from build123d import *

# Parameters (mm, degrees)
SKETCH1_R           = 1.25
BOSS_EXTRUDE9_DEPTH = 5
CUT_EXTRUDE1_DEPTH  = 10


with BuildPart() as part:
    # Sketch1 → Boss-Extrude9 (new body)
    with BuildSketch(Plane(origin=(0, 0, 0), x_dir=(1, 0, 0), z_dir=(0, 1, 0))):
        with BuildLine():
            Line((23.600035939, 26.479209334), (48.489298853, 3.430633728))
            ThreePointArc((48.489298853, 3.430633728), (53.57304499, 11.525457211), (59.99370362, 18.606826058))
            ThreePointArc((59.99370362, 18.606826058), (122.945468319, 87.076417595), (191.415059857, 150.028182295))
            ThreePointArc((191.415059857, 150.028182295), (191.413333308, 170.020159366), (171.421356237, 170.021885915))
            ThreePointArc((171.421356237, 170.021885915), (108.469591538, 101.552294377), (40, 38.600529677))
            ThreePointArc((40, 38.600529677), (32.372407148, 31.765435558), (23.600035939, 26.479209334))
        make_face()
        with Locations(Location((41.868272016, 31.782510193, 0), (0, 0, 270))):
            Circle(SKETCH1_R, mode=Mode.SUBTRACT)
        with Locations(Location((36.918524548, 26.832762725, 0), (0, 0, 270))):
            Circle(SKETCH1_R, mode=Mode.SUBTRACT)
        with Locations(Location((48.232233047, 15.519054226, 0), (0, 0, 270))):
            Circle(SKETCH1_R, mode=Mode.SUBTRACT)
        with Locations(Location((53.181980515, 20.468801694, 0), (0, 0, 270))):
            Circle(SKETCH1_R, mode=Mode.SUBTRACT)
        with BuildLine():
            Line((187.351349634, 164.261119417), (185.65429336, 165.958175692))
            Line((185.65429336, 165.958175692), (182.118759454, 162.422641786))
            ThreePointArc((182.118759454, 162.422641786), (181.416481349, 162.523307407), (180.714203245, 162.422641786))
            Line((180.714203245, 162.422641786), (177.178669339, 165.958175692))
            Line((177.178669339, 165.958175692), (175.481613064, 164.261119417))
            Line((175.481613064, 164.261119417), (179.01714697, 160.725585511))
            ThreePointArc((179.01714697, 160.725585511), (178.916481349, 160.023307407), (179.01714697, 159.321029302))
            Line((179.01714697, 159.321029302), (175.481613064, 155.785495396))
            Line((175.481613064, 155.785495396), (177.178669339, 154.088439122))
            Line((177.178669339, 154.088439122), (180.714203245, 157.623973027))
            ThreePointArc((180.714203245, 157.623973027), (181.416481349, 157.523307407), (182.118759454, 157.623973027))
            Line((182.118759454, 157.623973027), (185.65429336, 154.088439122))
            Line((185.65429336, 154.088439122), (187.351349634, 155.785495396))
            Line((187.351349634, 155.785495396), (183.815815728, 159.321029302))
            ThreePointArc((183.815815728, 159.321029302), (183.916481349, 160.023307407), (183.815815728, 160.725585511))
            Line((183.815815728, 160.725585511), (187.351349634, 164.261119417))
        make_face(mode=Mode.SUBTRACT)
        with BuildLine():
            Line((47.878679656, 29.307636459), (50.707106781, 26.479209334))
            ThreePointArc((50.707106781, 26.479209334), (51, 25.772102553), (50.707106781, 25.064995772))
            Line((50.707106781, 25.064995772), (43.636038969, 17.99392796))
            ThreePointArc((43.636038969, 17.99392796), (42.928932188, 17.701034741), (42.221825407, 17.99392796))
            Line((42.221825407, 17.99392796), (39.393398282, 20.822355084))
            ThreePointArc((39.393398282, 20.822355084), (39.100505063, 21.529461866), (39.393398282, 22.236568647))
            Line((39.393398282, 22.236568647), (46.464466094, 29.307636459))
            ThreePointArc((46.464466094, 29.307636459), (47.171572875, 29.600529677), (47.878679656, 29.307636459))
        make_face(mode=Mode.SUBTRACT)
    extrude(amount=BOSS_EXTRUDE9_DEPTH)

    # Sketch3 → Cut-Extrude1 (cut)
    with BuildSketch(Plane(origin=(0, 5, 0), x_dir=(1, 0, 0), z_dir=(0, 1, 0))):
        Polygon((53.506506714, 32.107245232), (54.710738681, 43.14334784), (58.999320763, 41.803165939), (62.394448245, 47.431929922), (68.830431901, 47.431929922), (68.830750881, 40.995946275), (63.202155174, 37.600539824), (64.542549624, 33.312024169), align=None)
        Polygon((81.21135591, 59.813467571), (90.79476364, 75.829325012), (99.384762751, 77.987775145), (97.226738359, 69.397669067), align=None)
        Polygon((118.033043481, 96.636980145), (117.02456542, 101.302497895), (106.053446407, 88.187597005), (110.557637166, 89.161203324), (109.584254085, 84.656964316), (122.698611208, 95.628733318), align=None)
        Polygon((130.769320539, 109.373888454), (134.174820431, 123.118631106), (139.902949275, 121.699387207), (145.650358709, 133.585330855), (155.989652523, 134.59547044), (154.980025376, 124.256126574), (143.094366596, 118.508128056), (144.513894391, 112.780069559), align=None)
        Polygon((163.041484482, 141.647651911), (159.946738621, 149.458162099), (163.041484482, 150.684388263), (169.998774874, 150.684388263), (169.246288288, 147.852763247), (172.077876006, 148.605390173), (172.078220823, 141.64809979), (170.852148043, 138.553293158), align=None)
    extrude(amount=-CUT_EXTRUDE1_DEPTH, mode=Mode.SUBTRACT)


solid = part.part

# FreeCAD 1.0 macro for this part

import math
import FreeCAD as App
import Part
import Sketcher
from FreeCAD import Vector
Q = App.Units.Quantity


def add_polygon(sketch, points):
    """Adds a closed chain of lines whose ends are joined by coincident constraints."""
    first, n = sketch.GeometryCount, len(points)
    for a, b in zip(points, points[1:] + points[:1]):
        sketch.addGeometry(Part.LineSegment(App.Vector(*a, 0), App.Vector(*b, 0)), False)
    for i in range(n):
        sketch.addConstraint(Sketcher.Constraint("Coincident", first + i, 2, first + (i + 1) % n, 1))

doc = App.newDocument("Part")
params = doc.addObject("Spreadsheet::Sheet", "Params")
for row, (alias, value) in enumerate([
    ("sketch1_radius", "1 mm"),
    ("sketch1_diameter", "2.5 mm"),
    ("sketch1_radius2", "2.5 mm"),
    ("sketch1_length", "4 mm"),
    ("sketch1_length2", "10 mm"),
    ("pad1_length", "5 mm"),
    ("pocket1_length", "10 mm"),
], start=1):
    params.set(f"A{row}", alias)
    params.set(f"B{row}", "=" + value)
    params.setAlias(f"B{row}", alias)

body = doc.addObject("PartDesign::Body", "Body")

sketch1 = body.newObject("Sketcher::SketchObject", "Sketch")
sketch1.AttachmentSupport = (doc.getObject("XZ_Plane"), [""])
sketch1.MapMode = "FlatFace"
sketch1.addGeometry([
    Part.LineSegment(Vector(23.6, -26.5, 0), Vector(48.5, -3.4, 0)),
    Part.ArcOfCircle(Part.Circle(Vector(97, 21.4, 0), Vector(0, 0, 1), 54.5), math.radians(-153), math.radians(-133)),
    Part.ArcOfCircle(Part.Circle(Vector(906.9, 696.8, 0), Vector(0, 0, 1), 1108.6), math.radians(-139.81), math.radians(-130.19)),
    Part.ArcOfCircle(Part.Circle(Vector(181.4, -160, 0), Vector(0, 0, 1), 14.1), math.radians(-135), math.radians(45)),
    Part.ArcOfCircle(Part.Circle(Vector(-675.4, -885.5, 0), Vector(0, 0, 1), 1108.6), math.radians(40.19), math.radians(49.81)),
    Part.ArcOfCircle(Part.Circle(Vector(0, -75.6, 0), Vector(0, 0, 1), 54.5), math.radians(43), math.radians(64)),
    Part.ArcOfCircle(Part.Circle(Vector(47.2, -28.6, 0), Vector(0, 0, 1), 1), math.radians(-135), math.radians(-45)),
    Part.LineSegment(Vector(47.9, -29.3, 0), Vector(50.7, -26.5, 0)),
    Part.ArcOfCircle(Part.Circle(Vector(50, -25.8, 0), Vector(0, 0, 1), 1), math.radians(-45), math.radians(45)),
    Part.LineSegment(Vector(50.7, -25.1, 0), Vector(43.6, -18, 0)),
    Part.ArcOfCircle(Part.Circle(Vector(42.9, -18.7, 0), Vector(0, 0, 1), 1), math.radians(45), math.radians(135)),
    Part.LineSegment(Vector(42.2, -18, 0), Vector(39.4, -20.8, 0)),
    Part.ArcOfCircle(Part.Circle(Vector(40.1, -21.5, 0), Vector(0, 0, 1), 1), math.radians(135), math.radians(225)),
    Part.LineSegment(Vector(39.4, -22.2, 0), Vector(46.5, -29.3, 0)),
    Part.Circle(Vector(48.2, -15.5, 0), Vector(0, 0, 1), 1.2),
    Part.Circle(Vector(53.2, -20.5, 0), Vector(0, 0, 1), 1.2),
    Part.Circle(Vector(36.9, -26.8, 0), Vector(0, 0, 1), 1.2),
    Part.Circle(Vector(41.9, -31.8, 0), Vector(0, 0, 1), 1.2),
    Part.LineSegment(Vector(185.7, -166, 0), Vector(187.4, -164.3, 0)),
    Part.LineSegment(Vector(187.4, -164.3, 0), Vector(183.8, -160.7, 0)),
    Part.ArcOfCircle(Part.Circle(Vector(181.4, -160, 0), Vector(0, 0, 1), 2.5), math.radians(-16), math.radians(16)),
    Part.LineSegment(Vector(183.8, -159.3, 0), Vector(187.4, -155.8, 0)),
    Part.LineSegment(Vector(187.4, -155.8, 0), Vector(185.7, -154.1, 0)),
    Part.LineSegment(Vector(185.7, -154.1, 0), Vector(182.1, -157.6, 0)),
    Part.ArcOfCircle(Part.Circle(Vector(181.4, -160, 0), Vector(0, 0, 1), 2.5), math.radians(74), math.radians(106)),
    Part.LineSegment(Vector(180.7, -157.6, 0), Vector(177.2, -154.1, 0)),
    Part.LineSegment(Vector(177.2, -154.1, 0), Vector(175.5, -155.8, 0)),
    Part.LineSegment(Vector(175.5, -155.8, 0), Vector(179, -159.3, 0)),
    Part.ArcOfCircle(Part.Circle(Vector(181.4, -160, 0), Vector(0, 0, 1), 2.5), math.radians(164), math.radians(196)),
    Part.LineSegment(Vector(179, -160.7, 0), Vector(175.5, -164.3, 0)),
    Part.LineSegment(Vector(175.5, -164.3, 0), Vector(177.2, -166, 0)),
    Part.LineSegment(Vector(177.2, -166, 0), Vector(180.7, -162.4, 0)),
    Part.ArcOfCircle(Part.Circle(Vector(181.4, -160, 0), Vector(0, 0, 1), 2.5), math.radians(-106), math.radians(-74)),
    Part.LineSegment(Vector(182.1, -162.4, 0), Vector(185.7, -166, 0)),
], False)
sketch1.addConstraint([
    Sketcher.Constraint("Coincident", 0, 2, 1, 1),
    Sketcher.Constraint("Coincident", 1, 2, 2, 1),
    Sketcher.Constraint("Coincident", 2, 2, 3, 2),
    Sketcher.Constraint("Coincident", 3, 1, 4, 1),
    Sketcher.Constraint("Coincident", 4, 2, 5, 1),
    Sketcher.Constraint("Coincident", 5, 2, 0, 1),
    Sketcher.Constraint("Tangent", 6, 2, 7, 1),
    Sketcher.Constraint("Tangent", 7, 2, 8, 1),
    Sketcher.Constraint("Tangent", 8, 2, 9, 1),
    Sketcher.Constraint("Tangent", 9, 2, 10, 1),
    Sketcher.Constraint("Tangent", 10, 2, 11, 1),
    Sketcher.Constraint("Tangent", 11, 2, 12, 1),
    Sketcher.Constraint("Tangent", 12, 2, 13, 1),
    Sketcher.Constraint("Tangent", 13, 2, 6, 1),
    Sketcher.Constraint("Coincident", 18, 2, 19, 1),
    Sketcher.Constraint("Coincident", 19, 2, 20, 1),
    Sketcher.Constraint("Coincident", 20, 2, 21, 1),
    Sketcher.Constraint("Coincident", 21, 2, 22, 1),
    Sketcher.Constraint("Coincident", 22, 2, 23, 1),
    Sketcher.Constraint("Coincident", 23, 2, 24, 1),
    Sketcher.Constraint("Coincident", 24, 2, 25, 1),
    Sketcher.Constraint("Coincident", 25, 2, 26, 1),
    Sketcher.Constraint("Coincident", 26, 2, 27, 1),
    Sketcher.Constraint("Coincident", 27, 2, 28, 1),
    Sketcher.Constraint("Coincident", 28, 2, 29, 1),
    Sketcher.Constraint("Coincident", 29, 2, 30, 1),
    Sketcher.Constraint("Coincident", 30, 2, 31, 1),
    Sketcher.Constraint("Coincident", 31, 2, 32, 1),
    Sketcher.Constraint("Coincident", 32, 2, 33, 1),
    Sketcher.Constraint("Coincident", 33, 2, 18, 1),
    Sketcher.Constraint("Coincident", 20, 3, 3, 3),
    Sketcher.Constraint("Coincident", 24, 3, 3, 3),
    Sketcher.Constraint("Coincident", 28, 3, 3, 3),
    Sketcher.Constraint("Coincident", 32, 3, 3, 3),
    Sketcher.Constraint("Equal", 2, 4),
    Sketcher.Constraint("Equal", 1, 5),
    Sketcher.Constraint("Equal", 6, 8),
    Sketcher.Constraint("Equal", 8, 10),
    Sketcher.Constraint("Equal", 10, 12),
    Sketcher.Constraint("Equal", 14, 15),
    Sketcher.Constraint("Equal", 15, 16),
    Sketcher.Constraint("Equal", 16, 17),
    Sketcher.Constraint("Equal", 20, 24),
    Sketcher.Constraint("Equal", 24, 28),
    Sketcher.Constraint("Equal", 28, 32),
    Sketcher.Constraint("PointOnObject", 5, 3, -2),
    Sketcher.Constraint("Perpendicular", 7, 9),
    Sketcher.Constraint("Perpendicular", 9, 11),
    Sketcher.Constraint("Perpendicular", 11, 13),
    Sketcher.Constraint("Perpendicular", 13, 18),
    Sketcher.Constraint("Perpendicular", 18, 19),
    Sketcher.Constraint("Perpendicular", 19, 21),
    Sketcher.Constraint("Perpendicular", 21, 22),
    Sketcher.Constraint("Perpendicular", 22, 23),
    Sketcher.Constraint("Perpendicular", 23, 25),
    Sketcher.Constraint("Perpendicular", 25, 26),
    Sketcher.Constraint("Perpendicular", 26, 27),
    Sketcher.Constraint("Perpendicular", 27, 29),
    Sketcher.Constraint("Perpendicular", 29, 30),
    Sketcher.Constraint("Perpendicular", 30, 31),
    Sketcher.Constraint("Perpendicular", 31, 33),
    Sketcher.Constraint("Horizontal", 5, 2, 7, 2),
    Sketcher.Constraint("Horizontal", 9, 2, 10, 2),
    Sketcher.Constraint("Horizontal", 23, 2, 24, 2),
    Sketcher.Constraint("Horizontal", 22, 2, 25, 2),
    Sketcher.Constraint("Horizontal", 21, 2, 26, 2),
    Sketcher.Constraint("Horizontal", 19, 2, 28, 2),
    Sketcher.Constraint("Horizontal", 18, 2, 29, 2),
    Sketcher.Constraint("Horizontal", 31, 2, 32, 2),
    Sketcher.Constraint("Vertical", 19, 2, 20, 2),
    Sketcher.Constraint("Vertical", 18, 2, 21, 2),
    Sketcher.Constraint("Vertical", 25, 2, 30, 2),
    Sketcher.Constraint("Equal", 21, 23),
    Sketcher.Constraint("Radius", 6, Q("1 mm")),
    Sketcher.Constraint("Diameter", 14, Q("2.5 mm")),
    Sketcher.Constraint("Radius", 20, Q("2.5 mm")),
    Sketcher.Constraint("Distance", 7, Q("4 mm")),
    Sketcher.Constraint("Distance", 9, Q("10 mm")),
    Sketcher.Constraint("Distance", 19, Q("5 mm")),
    Sketcher.Constraint("DistanceX", -1, 1, 8, 3, Q("50 mm")),
    Sketcher.Constraint("DistanceX", -1, 1, 4, 2, Q("40 mm")),
    Sketcher.Constraint("Distance", 18, Q("2.4 mm")),
    Sketcher.Constraint("Radius", 2, Q("1108.622609 mm")),
    Sketcher.Constraint("Radius", 1, Q("54.464286 mm")),
    Sketcher.Constraint("Radius", 3, Q("14.137684 mm")),
    Sketcher.Constraint("DistanceY", 15, 3, -1, 1, Q("20.468802 mm")),
    Sketcher.Constraint("DistanceX", -1, 1, 0, 2, Q("48.489299 mm")),
    Sketcher.Constraint("DistanceY", 10, 3, 1, 3, Q("40.077499 mm")),
    Sketcher.Constraint("DistanceX", 10, 3, 14, 3, Q("5.303301 mm")),
    Sketcher.Constraint("DistanceY", 8, 3, 15, 3, Q("5.303301 mm")),
    Sketcher.Constraint("DistanceY", 16, 3, 12, 3, Q("5.303301 mm")),
    Sketcher.Constraint("DistanceX", 17, 3, 6, 3, Q("5.303301 mm")),
    Sketcher.Constraint("DistanceX", 15, 3, 20, 3, Q("128.234501 mm")),
    Sketcher.Constraint("DistanceY", 10, 3, 0, 2, Q("15.270401 mm")),
    Sketcher.Constraint("DistanceY", 17, 3, 5, 2, Q("5.303301 mm")),
    Sketcher.Constraint("DistanceX", 6, 2, 15, 3, Q("5.303301 mm")),
    Sketcher.Constraint("DistanceX", 16, 3, 10, 2, Q("5.303301 mm")),
    Sketcher.Constraint("Distance", 0, Q("33.92215 mm")),
    Sketcher.Constraint("DistanceY", 4, 3, -1, 1, Q("885.466859 mm")),
    Sketcher.Constraint("DistanceX", -1, 1, 2, 2, Q("191.41506 mm")),
    Sketcher.Constraint("DistanceY", 18, 2, -1, 1, Q("164.261119 mm")),
    Sketcher.Constraint("DistanceX", 1, 3, 2, 3, Q("809.88397 mm")),
    Sketcher.Constraint("DistanceY", 10, 3, 14, 3, Q("3.181981 mm")),
])
sketch1.setExpression("Constraints[73]", "Params.sketch1_radius")
sketch1.setExpression("Constraints[74]", "Params.sketch1_diameter")
sketch1.setExpression("Constraints[75]", "Params.sketch1_radius2")
sketch1.setExpression("Constraints[76]", "Params.sketch1_length")
sketch1.setExpression("Constraints[77]", "Params.sketch1_length2")
pad1 = body.newObject("PartDesign::Pad", "Pad")
pad1.Profile = sketch1
pad1.setExpression("Length", "Params.pad1_length")
pad1.Reversed = True

sketch2 = body.newObject("Sketcher::SketchObject", "Sketch001")
sketch2.AttachmentSupport = (doc.getObject("XZ_Plane"), [""])
sketch2.MapMode = "FlatFace"
sketch2.AttachmentOffset = App.Placement(Vector(0, 0, -5), App.Rotation())
add_polygon(sketch2, [(54.7, -43.1), (53.5, -32.1), (64.5, -33.3), (63.2, -37.6), (68.8, -41), (68.8, -47.4), (62.4, -47.4), (59, -41.8)])
add_polygon(sketch2, [(90.8, -75.8), (81.2, -59.8), (97.2, -69.4), (99.4, -78)])
add_polygon(sketch2, [(118, -96.6), (117, -101.3), (106.1, -88.2), (110.6, -89.2), (109.6, -84.7), (122.7, -95.6)])
add_polygon(sketch2, [(134.2, -123.1), (130.8, -109.4), (144.5, -112.8), (143.1, -118.5), (155, -124.3), (156, -134.6), (145.7, -133.6), (139.9, -121.7)])
add_polygon(sketch2, [(159.9, -149.5), (163, -141.6), (170.9, -138.6), (172.1, -141.6), (172.1, -148.6), (169.2, -147.9), (170, -150.7), (163, -150.7)])
sketch2.addConstraint([
    Sketcher.Constraint("Horizontal", 5),
    Sketcher.Constraint("Horizontal", 32),
    Sketcher.Constraint("Perpendicular", 12, 14),
    Sketcher.Constraint("Perpendicular", 15, 17),
    Sketcher.Constraint("Perpendicular", 19, 20),
    Sketcher.Constraint("Perpendicular", 18, 25),
    Sketcher.Constraint("Perpendicular", 27, 28),
    Sketcher.Constraint("Parallel", 4, 29),
    Sketcher.Constraint("Perpendicular", 26, 33),
    Sketcher.Constraint("Vertical", 26, 2, 32, 2),
    Sketcher.Constraint("Equal", 0, 1),
    Sketcher.Constraint("Equal", 3, 6),
    Sketcher.Constraint("Equal", 2, 7),
    Sketcher.Constraint("Equal", 8, 9),
    Sketcher.Constraint("Equal", 10, 11),
    Sketcher.Constraint("Equal", 14, 15),
    Sketcher.Constraint("Equal", 13, 16),
    Sketcher.Constraint("Equal", 12, 17),
    Sketcher.Constraint("Equal", 18, 19),
    Sketcher.Constraint("Equal", 22, 23),
    Sketcher.Constraint("Equal", 21, 24),
    Sketcher.Constraint("Equal", 20, 25),
    Sketcher.Constraint("Equal", 26, 27),
    Sketcher.Constraint("Equal", 30, 31),
    Sketcher.Constraint("Equal", 28, 33),
    Sketcher.Constraint("DistanceX", 11, 2, 10, 2, Q("8.589999 mm")),
    Sketcher.Constraint("DistanceY", 21, 2, 20, 2, Q("5.747999 mm")),
    Sketcher.Constraint("DistanceY", 31, 2, 29, 2, Q("2.078998 mm")),
    Sketcher.Constraint("DistanceX", 32, 2, 32, 1, Q("6.95729 mm")),
    Sketcher.Constraint("DistanceY", 28, 2, -1, 1, Q("141.6481 mm")),
    Sketcher.Constraint("DistanceX", 1, 2, 3, 2, Q("4.288201 mm")),
    Sketcher.Constraint("DistanceY", 3, 2, 0, 2, Q("8.888701 mm")),
    Sketcher.Constraint("DistanceX", 5, 2, 1, 2, Q("2.148101 mm")),
    Sketcher.Constraint("DistanceX", 2, 2, 8, 2, Q("18.009201 mm")),
    Sketcher.Constraint("DistanceY", 8, 2, 6, 2, Q("18.010302 mm")),
    Sketcher.Constraint("DistanceY", 9, 2, 8, 2, Q("9.584201 mm")),
    Sketcher.Constraint("DistanceX", 11, 2, 12, 2, Q("26.229802 mm")),
    Sketcher.Constraint("DistanceY", 12, 2, 13, 2, Q("13.114901 mm")),
    Sketcher.Constraint("DistanceX", 9, 2, 14, 2, Q("13.330899 mm")),
    Sketcher.Constraint("DistanceX", 12, 2, 20, 2, Q("26.069801 mm")),
    Sketcher.Constraint("DistanceY", 22, 2, 19, 2, Q("21.815401 mm")),
    Sketcher.Constraint("DistanceY", 24, 2, 18, 2, Q("12.325499 mm")),
    Sketcher.Constraint("DistanceX", 18, 2, 25, 2, Q("3.4055 mm")),
    Sketcher.Constraint("DistanceY", 23, 2, 25, 2, Q("10.4667 mm")),
    Sketcher.Constraint("DistanceX", 31, 2, 29, 2, Q("2.079101 mm")),
    Sketcher.Constraint("DistanceY", 33, 2, 30, 2, Q("1.605399 mm")),
    Sketcher.Constraint("Distance", 0, Q("11.10161 mm")),
    Sketcher.Constraint("Distance", 2, Q("4.493108 mm")),
    Sketcher.Constraint("Distance", 3, Q("6.573422 mm")),
    Sketcher.Constraint("Distance", 8, Q("18.66412 mm")),
    Sketcher.Constraint("Distance", 10, Q("8.857031 mm")),
    Sketcher.Constraint("Distance", 20, Q("5.901331 mm")),
    Sketcher.Constraint("Distance", 21, Q("13.20259 mm")),
    Sketcher.Constraint("Distance", 22, Q("10.388521 mm")),
    Sketcher.Constraint("Distance", 26, Q("8.401281 mm")),
    Sketcher.Constraint("Distance", 29, Q("6.95729 mm")),
    Sketcher.Constraint("DistanceX", 5, 2, 5, 1, Q("6.435984 mm")),
    Sketcher.Constraint("DistanceX", -1, 1, 1, 2, Q("64.54255 mm")),
    Sketcher.Constraint("DistanceY", 2, 2, -1, 1, Q("37.60054 mm")),
    Sketcher.Constraint("DistanceY", 4, 2, -1, 1, Q("47.43193 mm")),
    Sketcher.Constraint("DistanceX", -1, 1, 6, 2, Q("58.999321 mm")),
    Sketcher.Constraint("DistanceX", -1, 1, 7, 2, Q("54.710739 mm")),
    Sketcher.Constraint("DistanceX", -1, 1, 16, 2, Q("122.698611 mm")),
    Sketcher.Constraint("DistanceY", 17, 2, -1, 1, Q("96.63698 mm")),
    Sketcher.Constraint("DistanceY", 18, 2, -1, 1, Q("109.373888 mm")),
    Sketcher.Constraint("DistanceX", -1, 1, 27, 2, Q("170.852148 mm")),
    Sketcher.Constraint("DistanceY", 12, 2, 9, 2, Q("31.904829 mm")),
    Sketcher.Constraint("DistanceX", 13, 2, 12, 2, Q("10.971119 mm")),
])
pocket1 = body.newObject("PartDesign::Pocket", "Pocket")
pocket1.Profile = sketch2
pocket1.setExpression("Length", "Params.pocket1_length")
pocket1.Reversed = True

doc.recompute()
